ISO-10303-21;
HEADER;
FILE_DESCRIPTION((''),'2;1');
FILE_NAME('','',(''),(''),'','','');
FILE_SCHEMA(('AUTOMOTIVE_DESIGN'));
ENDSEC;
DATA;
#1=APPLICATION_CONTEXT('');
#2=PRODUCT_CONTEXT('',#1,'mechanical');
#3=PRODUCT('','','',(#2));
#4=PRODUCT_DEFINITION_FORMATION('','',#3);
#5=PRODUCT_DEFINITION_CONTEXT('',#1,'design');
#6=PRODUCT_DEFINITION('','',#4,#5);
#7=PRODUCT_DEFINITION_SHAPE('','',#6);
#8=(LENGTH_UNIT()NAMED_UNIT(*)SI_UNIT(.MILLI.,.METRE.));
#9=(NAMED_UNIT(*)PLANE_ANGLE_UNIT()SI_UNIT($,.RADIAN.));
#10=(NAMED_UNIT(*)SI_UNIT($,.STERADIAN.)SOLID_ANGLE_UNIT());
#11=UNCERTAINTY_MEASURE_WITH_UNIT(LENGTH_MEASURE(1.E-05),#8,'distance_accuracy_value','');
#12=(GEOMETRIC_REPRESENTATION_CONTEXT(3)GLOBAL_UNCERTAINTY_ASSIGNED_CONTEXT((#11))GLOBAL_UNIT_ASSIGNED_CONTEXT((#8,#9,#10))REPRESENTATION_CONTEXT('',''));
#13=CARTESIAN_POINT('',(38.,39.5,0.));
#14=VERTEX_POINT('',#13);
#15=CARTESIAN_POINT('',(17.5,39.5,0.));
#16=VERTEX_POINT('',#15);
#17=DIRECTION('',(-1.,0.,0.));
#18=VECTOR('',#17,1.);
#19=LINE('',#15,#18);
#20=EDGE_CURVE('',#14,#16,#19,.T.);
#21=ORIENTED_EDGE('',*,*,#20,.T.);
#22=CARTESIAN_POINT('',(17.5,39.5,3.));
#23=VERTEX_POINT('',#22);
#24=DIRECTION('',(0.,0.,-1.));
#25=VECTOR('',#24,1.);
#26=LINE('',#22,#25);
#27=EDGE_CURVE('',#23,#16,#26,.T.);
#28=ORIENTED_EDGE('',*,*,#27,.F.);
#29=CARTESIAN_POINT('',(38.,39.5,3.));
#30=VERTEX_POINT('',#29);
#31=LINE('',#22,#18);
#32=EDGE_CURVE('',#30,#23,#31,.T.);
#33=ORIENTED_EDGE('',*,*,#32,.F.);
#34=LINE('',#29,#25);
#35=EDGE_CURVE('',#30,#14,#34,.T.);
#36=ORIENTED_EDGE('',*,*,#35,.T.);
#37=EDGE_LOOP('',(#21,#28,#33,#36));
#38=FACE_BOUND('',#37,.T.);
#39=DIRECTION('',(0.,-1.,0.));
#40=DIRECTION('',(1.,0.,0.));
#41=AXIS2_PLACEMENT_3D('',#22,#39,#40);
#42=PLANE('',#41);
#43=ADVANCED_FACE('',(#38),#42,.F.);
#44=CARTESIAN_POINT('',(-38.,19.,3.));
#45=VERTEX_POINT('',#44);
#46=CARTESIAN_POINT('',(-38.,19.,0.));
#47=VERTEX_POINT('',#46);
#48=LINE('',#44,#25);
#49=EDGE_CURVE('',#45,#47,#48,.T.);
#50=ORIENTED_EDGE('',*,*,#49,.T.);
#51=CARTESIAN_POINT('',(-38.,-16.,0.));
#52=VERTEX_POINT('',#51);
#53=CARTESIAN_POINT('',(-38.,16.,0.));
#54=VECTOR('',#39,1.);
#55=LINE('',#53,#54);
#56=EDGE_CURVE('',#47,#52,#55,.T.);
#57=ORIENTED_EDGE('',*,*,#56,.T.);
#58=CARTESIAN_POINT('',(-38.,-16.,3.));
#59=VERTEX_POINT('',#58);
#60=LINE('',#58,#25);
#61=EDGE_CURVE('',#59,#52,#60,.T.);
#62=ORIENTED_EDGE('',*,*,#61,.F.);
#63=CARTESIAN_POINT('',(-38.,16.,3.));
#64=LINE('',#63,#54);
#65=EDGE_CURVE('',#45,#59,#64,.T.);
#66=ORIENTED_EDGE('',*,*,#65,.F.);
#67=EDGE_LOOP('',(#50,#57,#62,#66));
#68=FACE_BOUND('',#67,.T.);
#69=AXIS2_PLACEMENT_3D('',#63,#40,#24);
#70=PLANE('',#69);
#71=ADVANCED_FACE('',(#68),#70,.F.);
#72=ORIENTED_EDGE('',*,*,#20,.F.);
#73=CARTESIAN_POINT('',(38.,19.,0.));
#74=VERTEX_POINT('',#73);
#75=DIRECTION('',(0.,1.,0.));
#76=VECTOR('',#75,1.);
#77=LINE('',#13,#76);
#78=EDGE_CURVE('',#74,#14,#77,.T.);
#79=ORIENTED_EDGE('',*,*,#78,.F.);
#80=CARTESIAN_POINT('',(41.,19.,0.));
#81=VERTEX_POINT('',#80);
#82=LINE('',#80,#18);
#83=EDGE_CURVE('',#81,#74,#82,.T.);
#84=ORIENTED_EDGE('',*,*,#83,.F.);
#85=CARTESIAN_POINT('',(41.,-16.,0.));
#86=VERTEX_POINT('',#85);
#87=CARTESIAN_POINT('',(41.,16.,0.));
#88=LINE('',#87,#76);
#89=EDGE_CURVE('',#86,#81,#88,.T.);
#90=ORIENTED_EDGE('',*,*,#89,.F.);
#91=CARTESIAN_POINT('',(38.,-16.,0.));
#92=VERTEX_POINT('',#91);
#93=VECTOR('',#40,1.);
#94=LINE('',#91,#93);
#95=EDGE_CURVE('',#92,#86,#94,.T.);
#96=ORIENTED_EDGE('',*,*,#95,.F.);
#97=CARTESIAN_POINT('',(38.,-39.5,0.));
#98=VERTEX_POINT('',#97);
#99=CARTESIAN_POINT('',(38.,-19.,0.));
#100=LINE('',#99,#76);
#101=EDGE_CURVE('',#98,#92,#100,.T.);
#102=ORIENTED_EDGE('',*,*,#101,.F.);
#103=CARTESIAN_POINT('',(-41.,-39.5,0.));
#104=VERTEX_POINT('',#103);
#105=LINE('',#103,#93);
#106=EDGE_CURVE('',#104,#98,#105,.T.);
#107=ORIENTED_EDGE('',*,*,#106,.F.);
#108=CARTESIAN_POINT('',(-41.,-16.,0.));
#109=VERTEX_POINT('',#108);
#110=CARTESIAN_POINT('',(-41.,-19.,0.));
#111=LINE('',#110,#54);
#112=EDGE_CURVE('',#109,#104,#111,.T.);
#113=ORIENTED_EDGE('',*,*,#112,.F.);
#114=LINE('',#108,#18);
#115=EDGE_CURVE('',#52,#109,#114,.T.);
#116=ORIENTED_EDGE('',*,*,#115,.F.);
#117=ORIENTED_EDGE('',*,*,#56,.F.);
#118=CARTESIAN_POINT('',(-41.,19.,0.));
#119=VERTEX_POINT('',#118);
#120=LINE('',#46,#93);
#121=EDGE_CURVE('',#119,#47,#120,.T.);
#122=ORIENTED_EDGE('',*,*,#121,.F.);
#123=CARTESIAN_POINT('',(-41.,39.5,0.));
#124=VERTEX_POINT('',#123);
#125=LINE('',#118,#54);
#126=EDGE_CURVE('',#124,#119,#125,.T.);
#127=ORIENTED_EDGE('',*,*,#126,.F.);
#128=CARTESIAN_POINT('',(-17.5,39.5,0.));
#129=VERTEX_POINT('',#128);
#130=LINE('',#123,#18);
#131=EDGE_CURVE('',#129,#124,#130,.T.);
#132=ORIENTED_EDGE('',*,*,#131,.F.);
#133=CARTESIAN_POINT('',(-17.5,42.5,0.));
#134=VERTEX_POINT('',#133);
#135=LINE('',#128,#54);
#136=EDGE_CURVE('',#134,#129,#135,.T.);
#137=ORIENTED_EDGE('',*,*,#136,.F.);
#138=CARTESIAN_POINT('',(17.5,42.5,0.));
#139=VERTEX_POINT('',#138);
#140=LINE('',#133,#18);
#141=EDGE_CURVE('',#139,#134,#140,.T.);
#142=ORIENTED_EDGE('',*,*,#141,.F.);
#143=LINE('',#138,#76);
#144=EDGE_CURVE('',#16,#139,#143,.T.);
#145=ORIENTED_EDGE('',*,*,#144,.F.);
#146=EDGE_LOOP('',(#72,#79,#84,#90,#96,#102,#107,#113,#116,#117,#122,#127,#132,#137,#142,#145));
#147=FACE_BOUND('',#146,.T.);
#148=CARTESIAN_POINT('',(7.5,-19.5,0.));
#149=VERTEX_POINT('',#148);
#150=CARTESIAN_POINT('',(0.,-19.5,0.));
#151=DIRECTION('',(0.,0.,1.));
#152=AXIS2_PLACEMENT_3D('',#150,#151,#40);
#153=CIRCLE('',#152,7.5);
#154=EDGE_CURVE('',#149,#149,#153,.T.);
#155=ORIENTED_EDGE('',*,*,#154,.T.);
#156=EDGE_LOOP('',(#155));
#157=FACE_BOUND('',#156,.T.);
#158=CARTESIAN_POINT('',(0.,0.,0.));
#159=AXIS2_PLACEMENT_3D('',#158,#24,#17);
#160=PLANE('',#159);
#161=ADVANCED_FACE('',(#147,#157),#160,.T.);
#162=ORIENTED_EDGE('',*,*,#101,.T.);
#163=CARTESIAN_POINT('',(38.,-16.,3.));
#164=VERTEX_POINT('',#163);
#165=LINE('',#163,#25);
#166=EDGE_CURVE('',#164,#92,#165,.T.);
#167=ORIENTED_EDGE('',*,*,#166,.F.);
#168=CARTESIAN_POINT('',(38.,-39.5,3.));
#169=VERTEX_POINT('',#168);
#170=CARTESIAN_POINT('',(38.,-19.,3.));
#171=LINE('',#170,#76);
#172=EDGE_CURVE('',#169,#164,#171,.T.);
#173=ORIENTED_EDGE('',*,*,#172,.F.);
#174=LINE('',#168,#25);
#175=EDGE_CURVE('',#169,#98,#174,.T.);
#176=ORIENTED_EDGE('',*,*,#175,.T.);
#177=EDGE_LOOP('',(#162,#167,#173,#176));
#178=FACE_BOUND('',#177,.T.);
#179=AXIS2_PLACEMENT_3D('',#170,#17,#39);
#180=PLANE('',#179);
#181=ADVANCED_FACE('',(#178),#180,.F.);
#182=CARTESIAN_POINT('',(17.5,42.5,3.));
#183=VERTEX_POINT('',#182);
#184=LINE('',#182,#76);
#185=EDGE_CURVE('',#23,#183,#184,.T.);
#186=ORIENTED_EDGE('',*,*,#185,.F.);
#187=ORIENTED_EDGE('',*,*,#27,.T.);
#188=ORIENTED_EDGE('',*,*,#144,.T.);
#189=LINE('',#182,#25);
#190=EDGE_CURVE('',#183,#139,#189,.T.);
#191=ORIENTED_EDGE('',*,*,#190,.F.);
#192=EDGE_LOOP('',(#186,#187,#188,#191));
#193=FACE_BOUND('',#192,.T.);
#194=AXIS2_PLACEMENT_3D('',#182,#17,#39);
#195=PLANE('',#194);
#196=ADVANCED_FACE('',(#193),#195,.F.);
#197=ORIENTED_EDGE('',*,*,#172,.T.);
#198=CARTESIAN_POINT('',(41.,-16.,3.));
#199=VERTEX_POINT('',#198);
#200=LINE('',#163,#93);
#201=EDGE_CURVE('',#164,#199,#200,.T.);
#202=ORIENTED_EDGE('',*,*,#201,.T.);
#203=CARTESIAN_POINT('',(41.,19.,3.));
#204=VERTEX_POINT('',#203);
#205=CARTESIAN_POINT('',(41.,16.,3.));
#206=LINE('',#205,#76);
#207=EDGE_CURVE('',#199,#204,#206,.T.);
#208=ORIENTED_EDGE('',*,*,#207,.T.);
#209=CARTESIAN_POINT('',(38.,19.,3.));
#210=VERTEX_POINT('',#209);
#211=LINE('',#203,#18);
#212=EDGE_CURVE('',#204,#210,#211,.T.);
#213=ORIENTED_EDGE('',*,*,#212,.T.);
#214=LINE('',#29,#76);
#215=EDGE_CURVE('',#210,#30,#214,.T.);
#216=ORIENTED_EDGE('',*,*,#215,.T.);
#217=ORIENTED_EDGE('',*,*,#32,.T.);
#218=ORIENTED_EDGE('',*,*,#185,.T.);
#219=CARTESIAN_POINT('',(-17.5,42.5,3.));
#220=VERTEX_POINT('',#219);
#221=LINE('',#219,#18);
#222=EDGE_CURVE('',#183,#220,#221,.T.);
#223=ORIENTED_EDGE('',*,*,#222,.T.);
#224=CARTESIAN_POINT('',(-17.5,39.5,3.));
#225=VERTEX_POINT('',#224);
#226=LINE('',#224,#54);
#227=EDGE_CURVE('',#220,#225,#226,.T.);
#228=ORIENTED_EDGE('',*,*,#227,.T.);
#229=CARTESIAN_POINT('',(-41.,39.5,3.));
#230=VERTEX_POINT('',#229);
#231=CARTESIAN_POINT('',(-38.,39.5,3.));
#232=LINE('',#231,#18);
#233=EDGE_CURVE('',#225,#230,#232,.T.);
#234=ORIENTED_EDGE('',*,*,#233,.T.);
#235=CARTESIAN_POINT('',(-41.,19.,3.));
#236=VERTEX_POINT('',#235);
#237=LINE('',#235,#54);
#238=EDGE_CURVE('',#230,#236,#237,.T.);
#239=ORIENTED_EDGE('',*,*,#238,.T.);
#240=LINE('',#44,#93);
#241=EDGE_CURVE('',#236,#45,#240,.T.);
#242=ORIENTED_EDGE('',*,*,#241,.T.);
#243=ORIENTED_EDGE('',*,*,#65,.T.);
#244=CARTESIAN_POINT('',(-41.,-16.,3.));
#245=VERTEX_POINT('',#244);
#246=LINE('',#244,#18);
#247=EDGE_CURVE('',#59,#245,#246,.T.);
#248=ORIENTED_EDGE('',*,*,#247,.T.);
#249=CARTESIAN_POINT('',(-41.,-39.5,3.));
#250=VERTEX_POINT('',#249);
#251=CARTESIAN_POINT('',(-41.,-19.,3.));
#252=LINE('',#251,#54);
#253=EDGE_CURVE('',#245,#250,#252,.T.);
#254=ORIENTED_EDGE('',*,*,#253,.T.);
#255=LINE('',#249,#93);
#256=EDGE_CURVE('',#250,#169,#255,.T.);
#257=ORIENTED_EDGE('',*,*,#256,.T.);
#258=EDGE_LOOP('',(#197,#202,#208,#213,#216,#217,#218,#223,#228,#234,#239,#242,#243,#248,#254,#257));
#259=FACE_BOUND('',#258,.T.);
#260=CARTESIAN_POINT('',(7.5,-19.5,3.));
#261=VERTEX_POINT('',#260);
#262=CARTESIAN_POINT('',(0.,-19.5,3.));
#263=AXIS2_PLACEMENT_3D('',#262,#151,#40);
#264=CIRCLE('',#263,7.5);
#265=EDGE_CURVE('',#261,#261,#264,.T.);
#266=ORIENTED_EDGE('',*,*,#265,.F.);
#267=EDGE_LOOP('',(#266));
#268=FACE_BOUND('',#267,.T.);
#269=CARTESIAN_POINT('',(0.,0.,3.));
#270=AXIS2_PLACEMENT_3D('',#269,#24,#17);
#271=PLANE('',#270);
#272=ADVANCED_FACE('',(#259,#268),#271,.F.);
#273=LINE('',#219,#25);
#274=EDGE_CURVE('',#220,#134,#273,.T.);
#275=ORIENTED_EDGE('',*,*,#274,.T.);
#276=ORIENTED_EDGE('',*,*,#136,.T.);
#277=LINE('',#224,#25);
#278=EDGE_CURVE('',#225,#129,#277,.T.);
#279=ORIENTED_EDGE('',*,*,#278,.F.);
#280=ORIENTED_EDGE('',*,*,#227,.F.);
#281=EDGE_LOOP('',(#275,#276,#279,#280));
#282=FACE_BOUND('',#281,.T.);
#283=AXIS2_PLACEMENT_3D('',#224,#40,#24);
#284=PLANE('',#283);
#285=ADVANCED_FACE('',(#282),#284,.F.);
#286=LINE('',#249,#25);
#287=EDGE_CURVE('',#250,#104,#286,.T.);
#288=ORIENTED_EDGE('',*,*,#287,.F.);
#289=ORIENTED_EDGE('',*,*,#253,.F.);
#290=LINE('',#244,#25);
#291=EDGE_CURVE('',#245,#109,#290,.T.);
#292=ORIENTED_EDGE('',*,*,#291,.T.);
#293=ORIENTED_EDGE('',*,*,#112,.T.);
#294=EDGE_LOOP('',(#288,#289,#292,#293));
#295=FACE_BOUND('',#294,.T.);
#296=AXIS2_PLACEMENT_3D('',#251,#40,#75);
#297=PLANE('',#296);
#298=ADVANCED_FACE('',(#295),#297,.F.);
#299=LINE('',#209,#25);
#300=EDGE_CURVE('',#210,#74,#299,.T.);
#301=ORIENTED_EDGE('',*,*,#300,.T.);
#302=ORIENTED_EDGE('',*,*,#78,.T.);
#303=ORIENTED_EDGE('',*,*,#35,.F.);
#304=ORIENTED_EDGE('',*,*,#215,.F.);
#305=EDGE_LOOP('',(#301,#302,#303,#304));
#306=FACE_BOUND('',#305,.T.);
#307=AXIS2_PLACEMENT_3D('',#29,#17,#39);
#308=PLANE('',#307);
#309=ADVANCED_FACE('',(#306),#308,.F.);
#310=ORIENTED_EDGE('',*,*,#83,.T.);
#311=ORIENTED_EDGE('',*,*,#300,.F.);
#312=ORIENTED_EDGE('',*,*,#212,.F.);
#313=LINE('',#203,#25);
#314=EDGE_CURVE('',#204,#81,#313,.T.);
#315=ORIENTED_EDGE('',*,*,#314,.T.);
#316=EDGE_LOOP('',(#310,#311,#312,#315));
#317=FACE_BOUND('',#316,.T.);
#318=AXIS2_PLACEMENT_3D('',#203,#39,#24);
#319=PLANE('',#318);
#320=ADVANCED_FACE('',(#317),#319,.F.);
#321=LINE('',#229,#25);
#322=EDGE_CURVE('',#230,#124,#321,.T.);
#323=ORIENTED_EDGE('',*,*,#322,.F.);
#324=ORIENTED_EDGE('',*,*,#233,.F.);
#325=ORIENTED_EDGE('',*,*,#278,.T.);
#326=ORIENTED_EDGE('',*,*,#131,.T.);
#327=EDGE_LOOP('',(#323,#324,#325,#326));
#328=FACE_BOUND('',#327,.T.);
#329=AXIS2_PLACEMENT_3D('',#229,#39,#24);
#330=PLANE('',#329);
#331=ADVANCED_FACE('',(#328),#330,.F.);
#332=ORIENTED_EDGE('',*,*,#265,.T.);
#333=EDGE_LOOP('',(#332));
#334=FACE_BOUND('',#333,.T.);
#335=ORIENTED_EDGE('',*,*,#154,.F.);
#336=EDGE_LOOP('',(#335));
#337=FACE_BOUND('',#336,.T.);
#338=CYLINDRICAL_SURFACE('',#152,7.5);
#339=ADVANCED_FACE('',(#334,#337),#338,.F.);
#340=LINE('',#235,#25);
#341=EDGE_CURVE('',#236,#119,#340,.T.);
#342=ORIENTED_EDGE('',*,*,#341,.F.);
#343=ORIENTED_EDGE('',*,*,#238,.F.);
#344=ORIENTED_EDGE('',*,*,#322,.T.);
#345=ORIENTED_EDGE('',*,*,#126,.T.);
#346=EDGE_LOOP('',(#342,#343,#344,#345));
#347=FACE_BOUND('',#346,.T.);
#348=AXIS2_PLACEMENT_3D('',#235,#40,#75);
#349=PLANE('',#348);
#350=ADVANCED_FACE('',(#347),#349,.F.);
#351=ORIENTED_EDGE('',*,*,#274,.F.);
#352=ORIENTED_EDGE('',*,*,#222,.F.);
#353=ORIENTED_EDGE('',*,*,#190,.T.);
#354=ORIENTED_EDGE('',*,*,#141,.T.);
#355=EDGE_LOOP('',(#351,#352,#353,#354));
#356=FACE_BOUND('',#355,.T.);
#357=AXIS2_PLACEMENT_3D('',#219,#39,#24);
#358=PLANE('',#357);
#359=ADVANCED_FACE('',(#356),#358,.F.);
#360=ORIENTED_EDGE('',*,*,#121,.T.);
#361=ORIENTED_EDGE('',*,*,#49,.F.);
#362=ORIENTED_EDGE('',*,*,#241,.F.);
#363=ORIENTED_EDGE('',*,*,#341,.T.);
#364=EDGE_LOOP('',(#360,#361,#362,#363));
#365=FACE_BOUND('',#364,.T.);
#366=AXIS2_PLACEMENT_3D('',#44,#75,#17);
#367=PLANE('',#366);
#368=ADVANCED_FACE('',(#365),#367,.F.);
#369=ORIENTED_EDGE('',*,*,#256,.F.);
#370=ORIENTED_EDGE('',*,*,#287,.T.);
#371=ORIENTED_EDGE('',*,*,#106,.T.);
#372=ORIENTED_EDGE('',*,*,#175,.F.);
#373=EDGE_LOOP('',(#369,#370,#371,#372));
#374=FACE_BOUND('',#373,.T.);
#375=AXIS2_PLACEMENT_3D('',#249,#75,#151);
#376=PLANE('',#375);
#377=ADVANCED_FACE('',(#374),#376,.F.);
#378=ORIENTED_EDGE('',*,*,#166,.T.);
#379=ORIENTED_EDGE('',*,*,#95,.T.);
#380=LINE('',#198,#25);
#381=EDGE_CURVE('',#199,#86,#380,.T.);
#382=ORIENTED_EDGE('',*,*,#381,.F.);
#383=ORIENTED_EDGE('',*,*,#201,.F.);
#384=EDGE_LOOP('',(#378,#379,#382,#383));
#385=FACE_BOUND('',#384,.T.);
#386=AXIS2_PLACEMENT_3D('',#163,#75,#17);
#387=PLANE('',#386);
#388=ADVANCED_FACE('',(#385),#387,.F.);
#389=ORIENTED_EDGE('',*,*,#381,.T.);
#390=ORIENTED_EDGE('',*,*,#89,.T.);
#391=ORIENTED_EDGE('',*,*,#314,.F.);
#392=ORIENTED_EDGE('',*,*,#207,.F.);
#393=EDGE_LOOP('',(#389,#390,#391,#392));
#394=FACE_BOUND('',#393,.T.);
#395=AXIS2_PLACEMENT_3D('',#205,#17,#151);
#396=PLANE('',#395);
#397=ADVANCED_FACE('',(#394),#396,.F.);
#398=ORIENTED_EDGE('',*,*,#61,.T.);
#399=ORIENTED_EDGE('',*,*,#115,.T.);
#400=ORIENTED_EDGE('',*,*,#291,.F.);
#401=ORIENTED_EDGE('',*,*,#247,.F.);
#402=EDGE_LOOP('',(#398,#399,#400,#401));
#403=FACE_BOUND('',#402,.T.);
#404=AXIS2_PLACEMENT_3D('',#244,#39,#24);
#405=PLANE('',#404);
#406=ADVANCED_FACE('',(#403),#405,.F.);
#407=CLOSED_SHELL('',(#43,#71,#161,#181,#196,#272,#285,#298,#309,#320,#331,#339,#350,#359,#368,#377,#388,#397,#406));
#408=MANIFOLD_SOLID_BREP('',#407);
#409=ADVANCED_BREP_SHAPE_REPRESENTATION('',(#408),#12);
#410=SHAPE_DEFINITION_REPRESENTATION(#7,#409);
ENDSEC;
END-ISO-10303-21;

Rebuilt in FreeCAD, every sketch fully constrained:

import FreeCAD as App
import Part
import Sketcher
Q = App.Units.Quantity


def add_polygon(sketch, points):
    """Adds a closed chain of lines whose ends are joined by coincident constraints."""
    first, n = sketch.GeometryCount, len(points)
    for a, b in zip(points, points[1:] + points[:1]):
        sketch.addGeometry(Part.LineSegment(App.Vector(*a, 0), App.Vector(*b, 0)), False)
    for i in range(n):
        sketch.addConstraint(Sketcher.Constraint("Coincident", first + i, 2, first + (i + 1) % n, 1))

doc = App.newDocument("Part")
body = doc.addObject("PartDesign::Body", "Body")

# Sketch on XY plane
sketch1 = body.newObject("Sketcher::SketchObject", "Sketch")
sketch1.AttachmentSupport = (doc.getObject("XY_Plane"), [""])
sketch1.MapMode = "FlatFace"
add_polygon(sketch1, [(-17.5, 39.5), (-41, 39.5), (-41, 19), (-38, 19), (-38, -16), (-41, -16), (-41, -39.5), (38, -39.5), (38, -16), (41, -16), (41, 19), (38, 19), (38, 39.5), (17.5, 39.5), (17.5, 42.5), (-17.5, 42.5)])  # lines 0-15
sketch1.addConstraint(Sketcher.Constraint("Horizontal", 0))
sketch1.addConstraint(Sketcher.Constraint("Vertical", 1))
sketch1.addConstraint(Sketcher.Constraint("Horizontal", 2))
sketch1.addConstraint(Sketcher.Constraint("Vertical", 3))
sketch1.addConstraint(Sketcher.Constraint("Horizontal", 4))
sketch1.addConstraint(Sketcher.Constraint("Vertical", 5))
sketch1.addConstraint(Sketcher.Constraint("Horizontal", 6))
sketch1.addConstraint(Sketcher.Constraint("Vertical", 7))
sketch1.addConstraint(Sketcher.Constraint("Horizontal", 8))
sketch1.addConstraint(Sketcher.Constraint("Vertical", 9))
sketch1.addConstraint(Sketcher.Constraint("Horizontal", 10))
sketch1.addConstraint(Sketcher.Constraint("Vertical", 11))
sketch1.addConstraint(Sketcher.Constraint("Horizontal", 12))
sketch1.addConstraint(Sketcher.Constraint("Vertical", 13))
sketch1.addConstraint(Sketcher.Constraint("Horizontal", 14))
sketch1.addConstraint(Sketcher.Constraint("Vertical", 15))
sketch1.addConstraint(Sketcher.Constraint("Symmetric", 3, 2, 7, 2, -2))
sketch1.addConstraint(Sketcher.Constraint("Symmetric", 1, 2, 9, 2, -2))
sketch1.addConstraint(Sketcher.Constraint("Symmetric", 12, 2, 15, 2, -2))
sketch1.addConstraint(Sketcher.Constraint("Symmetric", 0, 2, 5, 2, -1))
sketch1.addConstraint(Sketcher.Constraint("Vertical", 7, 2, 10, 2))
sketch1.addConstraint(Sketcher.Constraint("Equal", 12, 1))
sketch1.addConstraint(Sketcher.Constraint("Equal", 14, 3))
sketch1.addConstraint(Sketcher.Constraint("Equal", 0, 5))
sketch1.addConstraint(Sketcher.Constraint("Equal", 10, 13))
sketch1.addConstraint(Sketcher.Constraint("DistanceX", 2, 1, 2, 2, Q("3 mm")))
sketch1.addConstraint(Sketcher.Constraint("DistanceX", 6, 1, 6, 2, Q("79 mm")))
sketch1.addConstraint(Sketcher.Constraint("DistanceX", 14, 2, 14, 1, Q("35 mm")))
pad1 = body.newObject("PartDesign::Pad", "Pad")
pad1.Profile = sketch1
pad1.Length = 3

# Sketch on XY plane
sketch2 = body.newObject("Sketcher::SketchObject", "Sketch001")
sketch2.AttachmentSupport = (doc.getObject("XY_Plane"), [""])
sketch2.MapMode = "FlatFace"
sketch2.AttachmentOffset = App.Placement(App.Vector(0, 0, 3), App.Rotation())
sketch2.addGeometry(Part.Circle(App.Vector(0, -20, 0), App.Vector(0, 0, 1), 8), False)
sketch2.addConstraint(Sketcher.Constraint("PointOnObject", 0, 3, -2))
sketch2.addConstraint(Sketcher.Constraint("Diameter", 0, Q("15 mm")))
sketch2.addConstraint(Sketcher.Constraint("DistanceY", 0, 3, -1, 1, Q("19.5 mm")))
pocket1 = body.newObject("PartDesign::Pocket", "Pocket")
pocket1.Profile = sketch2
pocket1.Length = 3

doc.recompute()
